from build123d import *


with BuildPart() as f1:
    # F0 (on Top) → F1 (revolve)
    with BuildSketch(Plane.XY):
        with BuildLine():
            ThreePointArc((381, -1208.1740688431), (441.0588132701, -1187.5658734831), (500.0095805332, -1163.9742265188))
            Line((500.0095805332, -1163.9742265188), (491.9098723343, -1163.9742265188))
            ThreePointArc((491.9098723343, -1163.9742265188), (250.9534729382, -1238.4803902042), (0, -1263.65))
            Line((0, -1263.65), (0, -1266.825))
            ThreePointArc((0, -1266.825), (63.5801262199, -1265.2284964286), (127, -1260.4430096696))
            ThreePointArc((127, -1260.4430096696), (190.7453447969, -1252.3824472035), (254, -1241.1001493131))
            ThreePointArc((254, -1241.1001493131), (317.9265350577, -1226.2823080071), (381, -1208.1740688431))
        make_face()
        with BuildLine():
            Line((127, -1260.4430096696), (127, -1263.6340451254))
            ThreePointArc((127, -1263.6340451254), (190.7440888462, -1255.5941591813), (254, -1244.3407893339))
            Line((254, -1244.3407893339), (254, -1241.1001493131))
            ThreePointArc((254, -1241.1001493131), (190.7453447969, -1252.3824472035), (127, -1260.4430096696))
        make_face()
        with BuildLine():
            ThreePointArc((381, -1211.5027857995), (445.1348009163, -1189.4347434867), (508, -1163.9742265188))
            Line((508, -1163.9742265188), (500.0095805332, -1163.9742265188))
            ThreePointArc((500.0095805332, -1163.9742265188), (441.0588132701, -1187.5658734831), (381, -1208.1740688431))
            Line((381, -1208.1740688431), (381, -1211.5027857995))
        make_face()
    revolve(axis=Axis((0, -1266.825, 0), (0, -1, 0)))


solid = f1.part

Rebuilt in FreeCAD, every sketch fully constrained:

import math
import FreeCAD as App
import Part
import Sketcher

V = App.Vector
Q = App.Units.Quantity

doc = App.newDocument("Part")
body = doc.addObject("PartDesign::Body", "Body")

# Sketch on XY plane
sketch1 = body.newObject("Sketcher::SketchObject", "Sketch")
sketch1.AttachmentSupport = (doc.getObject("XY_Plane"), [""])
sketch1.MapMode = "FlatFace"
sketch1.addGeometry([
    Part.ArcOfCircle(Part.Circle(V(0, 0, 0), V(0, 0, 1), 1263.6), math.radians(-90), math.radians(-67)),  # 0
    Part.LineSegment(V(0, -1263.7, 0), V(0, -1266.8, 0)),  # 1
    Part.ArcOfCircle(Part.Circle(V(0, 0, 0), V(0, 0, 1), 1266.8), math.radians(-90), math.radians(-84.25)),  # 2
    Part.LineSegment(V(127, -1260.4, 0), V(127, -1263.6, 0)),  # 3
    Part.ArcOfCircle(Part.Circle(V(0, 0, 0), V(0, 0, 1), 1270), math.radians(-84.26), math.radians(-78.46)),  # 4
    Part.LineSegment(V(254, -1244.3, 0), V(254, -1241.1, 0)),  # 5
    Part.ArcOfCircle(Part.Circle(V(0, 0, 0), V(0, 0, 1), 1266.8), math.radians(-78.43), math.radians(-72.5)),  # 6
    Part.LineSegment(V(381, -1208.2, 0), V(381, -1211.5, 0)),  # 7
    Part.ArcOfCircle(Part.Circle(V(0, 0, 0), V(0, 0, 1), 1270), math.radians(-72.54), math.radians(-66.42)),  # 8
    Part.LineSegment(V(508, -1164, 0), V(491.9, -1164, 0)),  # 9
], False)
sketch1.addConstraint([
    Sketcher.Constraint("Coincident", 0, 1, 1, 1),
    Sketcher.Constraint("Coincident", 1, 2, 2, 1),
    Sketcher.Constraint("Coincident", 2, 2, 3, 1),
    Sketcher.Constraint("Coincident", 3, 2, 4, 1),
    Sketcher.Constraint("Coincident", 4, 2, 5, 1),
    Sketcher.Constraint("Coincident", 5, 2, 6, 1),
    Sketcher.Constraint("Coincident", 6, 2, 7, 1),
    Sketcher.Constraint("Coincident", 7, 2, 8, 1),
    Sketcher.Constraint("Coincident", 8, 2, 9, 1),
    Sketcher.Constraint("Coincident", 9, 2, 0, 2),
    Sketcher.Constraint("Vertical", 1),
    Sketcher.Constraint("Vertical", 3),
    Sketcher.Constraint("Vertical", 5),
    Sketcher.Constraint("Vertical", 7),
    Sketcher.Constraint("Horizontal", 9),
    Sketcher.Constraint("Coincident", 0, 3, -1, 1),
    Sketcher.Constraint("Coincident", 2, 3, -1, 1),
    Sketcher.Constraint("Coincident", 4, 3, -1, 1),
    Sketcher.Constraint("Coincident", 6, 3, -1, 1),
    Sketcher.Constraint("Coincident", 8, 3, -1, 1),
    Sketcher.Constraint("Equal", 2, 6),
    Sketcher.Constraint("Equal", 4, 8),
    Sketcher.Constraint("PointOnObject", 1, 2, -2),
    Sketcher.Constraint("Radius", 4, Q("50 in")),
    Sketcher.Constraint("Radius", 0, Q("49.75 in")),
    Sketcher.Constraint("DistanceX", -1, 1, 3, 2, Q("5 in")),
    Sketcher.Constraint("DistanceX", -1, 1, 5, 2, Q("10 in")),
    Sketcher.Constraint("DistanceX", -1, 1, 7, 2, Q("15 in")),
    Sketcher.Constraint("Radius", 2, Q("49.875 in")),
    Sketcher.Constraint("DistanceX", 9, 2, 9, 1, Q("16.090128 mm")),
])
revolution = body.newObject("PartDesign::Revolution", "Revolution")
revolution.Profile = sketch1
revolution.ReferenceAxis = (sketch1, ["V_Axis"])
revolution.Angle = 360

doc.recompute()
